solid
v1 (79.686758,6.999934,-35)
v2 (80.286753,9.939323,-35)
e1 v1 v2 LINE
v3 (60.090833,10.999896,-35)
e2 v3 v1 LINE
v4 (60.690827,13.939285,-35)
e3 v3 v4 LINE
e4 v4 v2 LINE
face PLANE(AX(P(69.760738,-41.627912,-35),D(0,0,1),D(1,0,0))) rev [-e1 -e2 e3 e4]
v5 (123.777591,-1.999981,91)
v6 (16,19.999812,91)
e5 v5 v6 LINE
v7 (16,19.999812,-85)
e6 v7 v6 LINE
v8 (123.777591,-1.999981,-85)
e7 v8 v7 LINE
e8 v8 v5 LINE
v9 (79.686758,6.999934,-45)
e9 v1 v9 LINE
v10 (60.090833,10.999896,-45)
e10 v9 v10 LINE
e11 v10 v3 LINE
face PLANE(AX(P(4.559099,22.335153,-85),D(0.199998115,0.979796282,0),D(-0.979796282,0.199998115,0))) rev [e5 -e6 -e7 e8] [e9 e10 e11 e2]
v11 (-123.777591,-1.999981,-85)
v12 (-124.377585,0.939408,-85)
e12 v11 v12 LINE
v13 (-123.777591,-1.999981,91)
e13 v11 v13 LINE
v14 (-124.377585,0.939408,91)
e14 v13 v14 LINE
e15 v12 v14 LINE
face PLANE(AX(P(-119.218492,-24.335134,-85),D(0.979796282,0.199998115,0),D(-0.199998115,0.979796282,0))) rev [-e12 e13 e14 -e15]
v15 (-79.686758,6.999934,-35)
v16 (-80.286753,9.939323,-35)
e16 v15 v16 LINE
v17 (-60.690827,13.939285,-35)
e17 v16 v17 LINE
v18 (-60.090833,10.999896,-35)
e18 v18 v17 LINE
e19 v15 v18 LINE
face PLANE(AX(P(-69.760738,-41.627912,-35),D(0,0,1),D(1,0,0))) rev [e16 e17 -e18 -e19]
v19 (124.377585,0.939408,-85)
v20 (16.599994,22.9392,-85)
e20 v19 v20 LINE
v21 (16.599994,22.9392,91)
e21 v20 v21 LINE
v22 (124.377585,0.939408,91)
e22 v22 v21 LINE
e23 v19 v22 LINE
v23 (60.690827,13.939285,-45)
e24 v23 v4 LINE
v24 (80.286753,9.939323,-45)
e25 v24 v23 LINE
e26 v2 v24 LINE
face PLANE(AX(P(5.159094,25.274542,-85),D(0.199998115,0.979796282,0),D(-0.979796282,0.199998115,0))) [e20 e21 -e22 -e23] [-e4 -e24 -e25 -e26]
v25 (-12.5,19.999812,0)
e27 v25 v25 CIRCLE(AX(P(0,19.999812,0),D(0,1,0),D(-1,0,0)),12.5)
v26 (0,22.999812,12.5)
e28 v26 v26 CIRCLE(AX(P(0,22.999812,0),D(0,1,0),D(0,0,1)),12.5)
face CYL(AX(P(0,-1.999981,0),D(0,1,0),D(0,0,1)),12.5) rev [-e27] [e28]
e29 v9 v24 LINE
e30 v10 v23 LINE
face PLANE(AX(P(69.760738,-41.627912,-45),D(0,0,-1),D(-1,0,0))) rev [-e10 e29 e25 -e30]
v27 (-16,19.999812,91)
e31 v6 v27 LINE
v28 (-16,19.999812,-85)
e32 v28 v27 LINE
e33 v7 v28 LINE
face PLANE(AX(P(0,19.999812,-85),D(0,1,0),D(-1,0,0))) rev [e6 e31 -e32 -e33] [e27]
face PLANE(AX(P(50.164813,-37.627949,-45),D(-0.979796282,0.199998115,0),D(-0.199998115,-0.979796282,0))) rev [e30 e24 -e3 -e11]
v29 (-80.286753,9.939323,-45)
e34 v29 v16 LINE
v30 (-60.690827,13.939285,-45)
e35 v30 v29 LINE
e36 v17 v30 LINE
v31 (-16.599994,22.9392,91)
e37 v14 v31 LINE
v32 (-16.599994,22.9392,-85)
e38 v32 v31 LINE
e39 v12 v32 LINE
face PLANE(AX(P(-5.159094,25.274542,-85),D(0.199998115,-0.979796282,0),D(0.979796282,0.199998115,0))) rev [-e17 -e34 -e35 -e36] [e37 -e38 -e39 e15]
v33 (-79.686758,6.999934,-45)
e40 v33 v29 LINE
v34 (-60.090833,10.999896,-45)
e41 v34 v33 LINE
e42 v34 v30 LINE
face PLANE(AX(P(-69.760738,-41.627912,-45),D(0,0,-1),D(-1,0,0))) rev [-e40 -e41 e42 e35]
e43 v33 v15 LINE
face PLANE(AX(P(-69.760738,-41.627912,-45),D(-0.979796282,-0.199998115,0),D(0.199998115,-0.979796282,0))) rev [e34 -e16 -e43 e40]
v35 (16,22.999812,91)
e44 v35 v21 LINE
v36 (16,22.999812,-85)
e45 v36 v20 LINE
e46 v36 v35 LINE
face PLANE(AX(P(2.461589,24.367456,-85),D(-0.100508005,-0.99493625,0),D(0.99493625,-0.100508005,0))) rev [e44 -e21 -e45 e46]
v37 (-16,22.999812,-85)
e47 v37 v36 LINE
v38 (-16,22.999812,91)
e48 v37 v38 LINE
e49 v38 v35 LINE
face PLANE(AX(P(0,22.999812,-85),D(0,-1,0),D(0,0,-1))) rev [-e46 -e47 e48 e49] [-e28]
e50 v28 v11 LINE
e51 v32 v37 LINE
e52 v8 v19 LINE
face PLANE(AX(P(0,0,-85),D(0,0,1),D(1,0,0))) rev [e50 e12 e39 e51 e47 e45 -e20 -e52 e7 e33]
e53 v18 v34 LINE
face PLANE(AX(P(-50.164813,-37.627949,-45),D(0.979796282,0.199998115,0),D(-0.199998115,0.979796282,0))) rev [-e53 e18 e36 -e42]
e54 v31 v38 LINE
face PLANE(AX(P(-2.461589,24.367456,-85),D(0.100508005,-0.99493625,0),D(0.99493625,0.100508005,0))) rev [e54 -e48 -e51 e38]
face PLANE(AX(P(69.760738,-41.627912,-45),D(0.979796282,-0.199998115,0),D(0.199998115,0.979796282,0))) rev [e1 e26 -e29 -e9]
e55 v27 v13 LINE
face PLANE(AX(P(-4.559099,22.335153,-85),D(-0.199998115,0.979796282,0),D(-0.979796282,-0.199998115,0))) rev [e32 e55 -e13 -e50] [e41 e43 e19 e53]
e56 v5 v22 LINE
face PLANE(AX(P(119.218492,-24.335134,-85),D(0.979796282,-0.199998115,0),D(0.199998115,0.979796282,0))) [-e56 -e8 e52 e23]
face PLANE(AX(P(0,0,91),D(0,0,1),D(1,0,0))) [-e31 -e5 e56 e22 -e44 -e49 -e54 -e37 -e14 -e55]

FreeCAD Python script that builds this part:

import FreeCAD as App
import Part
import Sketcher
from FreeCAD import Vector
Q = App.Units.Quantity

doc = App.newDocument("Part")
body = doc.addObject("PartDesign::Body", "Body")

sketch1 = body.newObject("Sketcher::SketchObject", "Sketch")
sketch1.AttachmentSupport = (doc.getObject("XY_Plane"), [""])
sketch1.MapMode = "FlatFace"
sketch1.addGeometry([
    Part.LineSegment(Vector(16, 20, 0), Vector(-16, 20, 0)),
    Part.LineSegment(Vector(-16, 20, 0), Vector(-114, 0, 0)),
    Part.LineSegment(Vector(-114, 0, 0), Vector(-114, -10, 0)),
    Part.LineSegment(Vector(-114, -10, 0), Vector(114, -10, 0)),
    Part.LineSegment(Vector(114, -10, 0), Vector(114, 0, 0)),
    Part.LineSegment(Vector(114, 0, 0), Vector(16, 20, 0)),
], False)
sketch1.addConstraint([
    Sketcher.Constraint("Coincident", 0, 2, 1, 1),
    Sketcher.Constraint("Coincident", 1, 2, 2, 1),
    Sketcher.Constraint("Coincident", 2, 2, 3, 1),
    Sketcher.Constraint("Coincident", 3, 2, 4, 1),
    Sketcher.Constraint("Coincident", 4, 2, 5, 1),
    Sketcher.Constraint("Coincident", 5, 2, 0, 1),
    Sketcher.Constraint("Horizontal", 0),
    Sketcher.Constraint("Vertical", 2),
    Sketcher.Constraint("Horizontal", 3),
    Sketcher.Constraint("Vertical", 4),
    Sketcher.Constraint("Symmetric", 1, 2, 4, 2, -1, 1),
    Sketcher.Constraint("PointOnObject", 1, 2, -1),
    Sketcher.Constraint("Equal", 1, 5),
    Sketcher.Constraint("DistanceX", 0, 2, 0, 1, Q("32 mm")),
    Sketcher.Constraint("DistanceY", 2, 2, 2, 1, Q("10 mm")),
    Sketcher.Constraint("Distance", 1, Q("100 mm")),
    Sketcher.Constraint("DistanceX", 3, 1, 3, 2, Q("227.959256 mm")),
])
pad1 = body.newObject("PartDesign::Pad", "Pad")
pad1.Profile = sketch1
pad1.Length = 3

sketch2 = body.newObject("Sketcher::SketchObject", "Sketch001")
sketch2.AttachmentSupport = (doc.getObject("XY_Plane"), [""])
sketch2.MapMode = "FlatFace"
sketch2.AttachmentOffset = App.Placement(Vector(0, 0, 3), App.Rotation())
sketch2.addGeometry([
    Part.LineSegment(Vector(-114, 0, 0), Vector(-16, 20, 0)),
    Part.LineSegment(Vector(-16, 20, 0), Vector(16, 20, 0)),
    Part.LineSegment(Vector(16, 20, 0), Vector(114, 0, 0)),
    Part.LineSegment(Vector(114, 0, 0), Vector(123.8, -2, 0)),
    Part.LineSegment(Vector(123.8, -2, 0), Vector(124.4, 0.9, 0)),
    Part.LineSegment(Vector(124.4, 0.9, 0), Vector(16.6, 22.9, 0)),
    Part.LineSegment(Vector(16.6, 22.9, 0), Vector(16, 23, 0)),
    Part.LineSegment(Vector(16, 23, 0), Vector(-16, 23, 0)),
    Part.LineSegment(Vector(-16, 23, 0), Vector(-16.6, 22.9, 0)),
    Part.LineSegment(Vector(-16.6, 22.9, 0), Vector(-124.4, 0.9, 0)),
    Part.LineSegment(Vector(-124.4, 0.9, 0), Vector(-123.8, -2, 0)),
    Part.LineSegment(Vector(-123.8, -2, 0), Vector(-114, 0, 0)),
], False)
sketch2.addConstraint([
    Sketcher.Constraint("Coincident", 0, 2, 1, 1),
    Sketcher.Constraint("Coincident", 1, 2, 2, 1),
    Sketcher.Constraint("Coincident", 2, 2, 3, 1),
    Sketcher.Constraint("Coincident", 3, 2, 4, 1),
    Sketcher.Constraint("Coincident", 4, 2, 5, 1),
    Sketcher.Constraint("Coincident", 5, 2, 6, 1),
    Sketcher.Constraint("Coincident", 6, 2, 7, 1),
    Sketcher.Constraint("Coincident", 7, 2, 8, 1),
    Sketcher.Constraint("Coincident", 8, 2, 9, 1),
    Sketcher.Constraint("Coincident", 9, 2, 10, 1),
    Sketcher.Constraint("Coincident", 10, 2, 11, 1),
    Sketcher.Constraint("Coincident", 11, 2, 0, 1),
    Sketcher.Constraint("Horizontal", 1),
    Sketcher.Constraint("Horizontal", 7),
    Sketcher.Constraint("Symmetric", 2, 2, 11, 2, -1, 1),
    Sketcher.Constraint("Symmetric", 5, 2, 8, 2, -2),
    Sketcher.Constraint("Symmetric", 4, 2, 9, 2, -2),
    Sketcher.Constraint("Symmetric", 3, 2, 10, 2, -2),
    Sketcher.Constraint("PointOnObject", 2, 2, -1),
    Sketcher.Constraint("Parallel", 2, 3),
    Sketcher.Constraint("Perpendicular", 3, 4),
    Sketcher.Constraint("Perpendicular", 4, 5),
    Sketcher.Constraint("Parallel", 0, 9),
    Sketcher.Constraint("Vertical", 1, 2, 6, 2),
    Sketcher.Constraint("Vertical", 0, 2, 7, 2),
    Sketcher.Constraint("DistanceX", 1, 1, 1, 2, Q("32 mm")),
    Sketcher.Constraint("Distance", 0, Q("100 mm")),
    Sketcher.Constraint("Distance", 3, Q("10 mm")),
    Sketcher.Constraint("Distance", 4, Q("3 mm")),
    Sketcher.Constraint("Distance", 5, Q("110 mm")),
    Sketcher.Constraint("DistanceY", 1, 2, 6, 2, Q("3 mm")),
    Sketcher.Constraint("DistanceY", -1, 1, 5, 2, Q("22.9392 mm")),
])
pad2 = body.newObject("PartDesign::Pad", "Pad001")
pad2.Profile = sketch2
pad2.Type = "TwoLengths"
pad2.Length = 88
pad2.Length2 = 88

sketch3 = body.newObject("Sketcher::SketchObject", "Sketch002")
sketch3.AttachmentSupport = (doc.getObject("XY_Plane"), [""])
sketch3.MapMode = "FlatFace"
sketch3.AttachmentOffset = App.Placement(Vector(0, 0, 3), App.Rotation())
sketch3.addGeometry([
    Part.LineSegment(Vector(114, 0, 0), Vector(16, 20, 0)),
    Part.LineSegment(Vector(16, 20, 0), Vector(-16, 20, 0)),
    Part.LineSegment(Vector(-16, 20, 0), Vector(-114, 0, 0)),
    Part.LineSegment(Vector(-114, 0, 0), Vector(-114, -10, 0)),
    Part.LineSegment(Vector(-114, -10, 0), Vector(114, -10, 0)),
    Part.LineSegment(Vector(114, -10, 0), Vector(114, 0, 0)),
], False)
sketch3.addConstraint([
    Sketcher.Constraint("Coincident", 0, 2, 1, 1),
    Sketcher.Constraint("Coincident", 1, 2, 2, 1),
    Sketcher.Constraint("Coincident", 2, 2, 3, 1),
    Sketcher.Constraint("Coincident", 3, 2, 4, 1),
    Sketcher.Constraint("Coincident", 4, 2, 5, 1),
    Sketcher.Constraint("Coincident", 5, 2, 0, 1),
    Sketcher.Constraint("Horizontal", 1),
    Sketcher.Constraint("Vertical", 3),
    Sketcher.Constraint("Horizontal", 4),
    Sketcher.Constraint("Vertical", 5),
    Sketcher.Constraint("Symmetric", 2, 2, 5, 2, -1, 1),
    Sketcher.Constraint("PointOnObject", 2, 2, -1),
    Sketcher.Constraint("Equal", 0, 2),
    Sketcher.Constraint("DistanceX", 1, 2, 1, 1, Q("32 mm")),
    Sketcher.Constraint("DistanceY", 3, 2, 3, 1, Q("10 mm")),
    Sketcher.Constraint("Distance", 0, Q("100 mm")),
    Sketcher.Constraint("DistanceX", 4, 1, 4, 2, Q("227.959256 mm")),
])
pocket1 = body.newObject("PartDesign::Pocket", "Pocket")
pocket1.Profile = sketch3
pocket1.Length = 50

sketch4 = body.newObject("Sketcher::SketchObject", "Sketch003")
sketch4.AttachmentSupport = (doc.getObject("XZ_Plane"), [""])
sketch4.MapMode = "FlatFace"
sketch4.AttachmentOffset = App.Placement(Vector(0, 0, -22.999812), App.Rotation())
sketch4.addGeometry(Part.Circle(Vector(0, 0, 0), Vector(0, 0, 1), 12), False)
sketch4.addConstraint([
    Sketcher.Constraint("Coincident", 0, 3, -1, 1),
    Sketcher.Constraint("Diameter", 0, Q("25 mm")),
])
pocket2 = body.newObject("PartDesign::Pocket", "Pocket001")
pocket2.Profile = sketch4
pocket2.Type = "ThroughAll"
pocket2.Reversed = True

sketch5 = body.newObject("Sketcher::SketchObject", "Sketch004")
sketch5.Placement = App.Placement(Vector(-5.159094, 25.274542, 0), App.Rotation(Vector(0.979796282, 0.199998115, 0), Vector(0, 0, -1), Vector(-0.199998115, 0.979796282, 0), "ZXY"))
sketch5.addGeometry([
    Part.LineSegment(Vector(-77, 45, 0), Vector(-77, 35, 0)),
    Part.LineSegment(Vector(-77, 35, 0), Vector(-57, 35, 0)),
    Part.LineSegment(Vector(-57, 35, 0), Vector(-57, 45, 0)),
    Part.LineSegment(Vector(-57, 45, 0), Vector(-77, 45, 0)),
], False)
sketch5.addConstraint([
    Sketcher.Constraint("Coincident", 0, 2, 1, 1),
    Sketcher.Constraint("Coincident", 1, 2, 2, 1),
    Sketcher.Constraint("Coincident", 2, 2, 3, 1),
    Sketcher.Constraint("Coincident", 3, 2, 0, 1),
    Sketcher.Constraint("Vertical", 0),
    Sketcher.Constraint("Horizontal", 1),
    Sketcher.Constraint("Vertical", 2),
    Sketcher.Constraint("Horizontal", 3),
    Sketcher.Constraint("DistanceX", 1, 1, 1, 2, Q("20 mm")),
    Sketcher.Constraint("DistanceY", 0, 2, 0, 1, Q("10 mm")),
    Sketcher.Constraint("DistanceY", -1, 1, 0, 2, Q("35 mm")),
    Sketcher.Constraint("DistanceX", 0, 2, -1, 1, Q("76.676816 mm")),
])
pocket3 = body.newObject("PartDesign::Pocket", "Pocket002")
pocket3.Profile = sketch5
pocket3.Type = "ThroughAll"

sketch6 = body.newObject("Sketcher::SketchObject", "Sketch005")
sketch6.Placement = App.Placement(Vector(5.159094, 25.274542, 0), App.Rotation(Vector(0.979796282, -0.199998115, 0), Vector(0, 0, -1), Vector(0.199998115, 0.979796282, 0), "ZXY"))
sketch6.addGeometry([
    Part.LineSegment(Vector(57, 45, 0), Vector(57, 35, 0)),
    Part.LineSegment(Vector(57, 35, 0), Vector(77, 35, 0)),
    Part.LineSegment(Vector(77, 35, 0), Vector(77, 45, 0)),
    Part.LineSegment(Vector(77, 45, 0), Vector(57, 45, 0)),
], False)
sketch6.addConstraint([
    Sketcher.Constraint("Coincident", 0, 2, 1, 1),
    Sketcher.Constraint("Coincident", 1, 2, 2, 1),
    Sketcher.Constraint("Coincident", 2, 2, 3, 1),
    Sketcher.Constraint("Coincident", 3, 2, 0, 1),
    Sketcher.Constraint("Vertical", 0),
    Sketcher.Constraint("Horizontal", 1),
    Sketcher.Constraint("Vertical", 2),
    Sketcher.Constraint("Horizontal", 3),
    Sketcher.Constraint("DistanceX", 1, 1, 1, 2, Q("20 mm")),
    Sketcher.Constraint("DistanceY", 0, 2, 0, 1, Q("10 mm")),
    Sketcher.Constraint("DistanceY", -1, 1, 0, 2, Q("35 mm")),
    Sketcher.Constraint("DistanceX", -1, 1, 0, 2, Q("56.676816 mm")),
])
pocket4 = body.newObject("PartDesign::Pocket", "Pocket003")
pocket4.Profile = sketch6
pocket4.Type = "ThroughAll"

doc.recompute()
